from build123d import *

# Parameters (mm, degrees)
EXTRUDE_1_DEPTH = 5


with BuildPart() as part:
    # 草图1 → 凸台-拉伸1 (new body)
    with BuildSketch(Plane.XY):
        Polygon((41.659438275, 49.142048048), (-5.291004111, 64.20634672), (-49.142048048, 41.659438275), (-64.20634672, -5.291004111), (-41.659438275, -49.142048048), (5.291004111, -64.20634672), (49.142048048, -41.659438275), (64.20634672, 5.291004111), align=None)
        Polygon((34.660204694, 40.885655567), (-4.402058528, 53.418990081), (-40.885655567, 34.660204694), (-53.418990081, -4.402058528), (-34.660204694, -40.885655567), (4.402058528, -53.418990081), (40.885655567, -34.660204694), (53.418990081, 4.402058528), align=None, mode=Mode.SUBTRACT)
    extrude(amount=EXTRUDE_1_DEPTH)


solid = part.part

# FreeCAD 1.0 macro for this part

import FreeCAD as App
import Part
import Sketcher
from FreeCAD import Vector
Q = App.Units.Quantity


def add_polygon(sketch, points):
    """Adds a closed chain of lines whose ends are joined by coincident constraints."""
    first, n = sketch.GeometryCount, len(points)
    for a, b in zip(points, points[1:] + points[:1]):
        sketch.addGeometry(Part.LineSegment(App.Vector(*a, 0), App.Vector(*b, 0)), False)
    for i in range(n):
        sketch.addConstraint(Sketcher.Constraint("Coincident", first + i, 2, first + (i + 1) % n, 1))

doc = App.newDocument("Part")
body = doc.addObject("PartDesign::Body", "Body")

sketch1 = body.newObject("Sketcher::SketchObject", "Sketch")
sketch1.AttachmentSupport = (doc.getObject("XY_Plane"), [""])
sketch1.MapMode = "FlatFace"
add_polygon(sketch1, [(42, 49), (-5, 64), (-49, 42), (-64, -5), (-42, -49), (5, -64), (49, -42), (64, 5)])
add_polygon(sketch1, [(-4, 53), (35, 41), (53, 4), (41, -35), (4, -53), (-35, -41), (-53, -4), (-41, 35)])
sketch1.addConstraint([
    Sketcher.Constraint("Symmetric", 0, 2, 4, 2, -1, 1),
    Sketcher.Constraint("Symmetric", 1, 2, 5, 2, -1, 1),
    Sketcher.Constraint("Symmetric", 2, 2, 6, 2, -1, 1),
    Sketcher.Constraint("Symmetric", 3, 2, 7, 2, -1, 1),
    Sketcher.Constraint("Symmetric", 8, 2, 12, 2, -1, 1),
    Sketcher.Constraint("Symmetric", 9, 2, 13, 2, -1, 1),
    Sketcher.Constraint("Symmetric", 10, 2, 14, 2, -1, 1),
    Sketcher.Constraint("Symmetric", 11, 2, 15, 2, -1, 1),
    Sketcher.Constraint("Perpendicular", 0, 2),
    Sketcher.Constraint("Perpendicular", 1, 3),
    Sketcher.Constraint("Perpendicular", 6, 8),
    Sketcher.Constraint("Parallel", 7, 9),
    Sketcher.Constraint("Perpendicular", 8, 10),
    Sketcher.Constraint("Perpendicular", 9, 11),
    Sketcher.Constraint("Equal", 0, 1),
    Sketcher.Constraint("Equal", 1, 2),
    Sketcher.Constraint("Equal", 2, 3),
    Sketcher.Constraint("Equal", 8, 9),
    Sketcher.Constraint("Equal", 9, 10),
    Sketcher.Constraint("Equal", 10, 11),
    Sketcher.Constraint("DistanceX", 2, 2, 1, 2, Q("15.064299 mm")),
    Sketcher.Constraint("Distance", 8, Q("41.023711 mm")),
    Sketcher.Constraint("DistanceX", 1, 2, -1, 1, Q("49.142048 mm")),
    Sketcher.Constraint("DistanceY", -1, 1, 1, 2, Q("41.659438 mm")),
])
pad1 = body.newObject("PartDesign::Pad", "Pad")
pad1.Profile = sketch1
pad1.Length = 5

doc.recompute()
